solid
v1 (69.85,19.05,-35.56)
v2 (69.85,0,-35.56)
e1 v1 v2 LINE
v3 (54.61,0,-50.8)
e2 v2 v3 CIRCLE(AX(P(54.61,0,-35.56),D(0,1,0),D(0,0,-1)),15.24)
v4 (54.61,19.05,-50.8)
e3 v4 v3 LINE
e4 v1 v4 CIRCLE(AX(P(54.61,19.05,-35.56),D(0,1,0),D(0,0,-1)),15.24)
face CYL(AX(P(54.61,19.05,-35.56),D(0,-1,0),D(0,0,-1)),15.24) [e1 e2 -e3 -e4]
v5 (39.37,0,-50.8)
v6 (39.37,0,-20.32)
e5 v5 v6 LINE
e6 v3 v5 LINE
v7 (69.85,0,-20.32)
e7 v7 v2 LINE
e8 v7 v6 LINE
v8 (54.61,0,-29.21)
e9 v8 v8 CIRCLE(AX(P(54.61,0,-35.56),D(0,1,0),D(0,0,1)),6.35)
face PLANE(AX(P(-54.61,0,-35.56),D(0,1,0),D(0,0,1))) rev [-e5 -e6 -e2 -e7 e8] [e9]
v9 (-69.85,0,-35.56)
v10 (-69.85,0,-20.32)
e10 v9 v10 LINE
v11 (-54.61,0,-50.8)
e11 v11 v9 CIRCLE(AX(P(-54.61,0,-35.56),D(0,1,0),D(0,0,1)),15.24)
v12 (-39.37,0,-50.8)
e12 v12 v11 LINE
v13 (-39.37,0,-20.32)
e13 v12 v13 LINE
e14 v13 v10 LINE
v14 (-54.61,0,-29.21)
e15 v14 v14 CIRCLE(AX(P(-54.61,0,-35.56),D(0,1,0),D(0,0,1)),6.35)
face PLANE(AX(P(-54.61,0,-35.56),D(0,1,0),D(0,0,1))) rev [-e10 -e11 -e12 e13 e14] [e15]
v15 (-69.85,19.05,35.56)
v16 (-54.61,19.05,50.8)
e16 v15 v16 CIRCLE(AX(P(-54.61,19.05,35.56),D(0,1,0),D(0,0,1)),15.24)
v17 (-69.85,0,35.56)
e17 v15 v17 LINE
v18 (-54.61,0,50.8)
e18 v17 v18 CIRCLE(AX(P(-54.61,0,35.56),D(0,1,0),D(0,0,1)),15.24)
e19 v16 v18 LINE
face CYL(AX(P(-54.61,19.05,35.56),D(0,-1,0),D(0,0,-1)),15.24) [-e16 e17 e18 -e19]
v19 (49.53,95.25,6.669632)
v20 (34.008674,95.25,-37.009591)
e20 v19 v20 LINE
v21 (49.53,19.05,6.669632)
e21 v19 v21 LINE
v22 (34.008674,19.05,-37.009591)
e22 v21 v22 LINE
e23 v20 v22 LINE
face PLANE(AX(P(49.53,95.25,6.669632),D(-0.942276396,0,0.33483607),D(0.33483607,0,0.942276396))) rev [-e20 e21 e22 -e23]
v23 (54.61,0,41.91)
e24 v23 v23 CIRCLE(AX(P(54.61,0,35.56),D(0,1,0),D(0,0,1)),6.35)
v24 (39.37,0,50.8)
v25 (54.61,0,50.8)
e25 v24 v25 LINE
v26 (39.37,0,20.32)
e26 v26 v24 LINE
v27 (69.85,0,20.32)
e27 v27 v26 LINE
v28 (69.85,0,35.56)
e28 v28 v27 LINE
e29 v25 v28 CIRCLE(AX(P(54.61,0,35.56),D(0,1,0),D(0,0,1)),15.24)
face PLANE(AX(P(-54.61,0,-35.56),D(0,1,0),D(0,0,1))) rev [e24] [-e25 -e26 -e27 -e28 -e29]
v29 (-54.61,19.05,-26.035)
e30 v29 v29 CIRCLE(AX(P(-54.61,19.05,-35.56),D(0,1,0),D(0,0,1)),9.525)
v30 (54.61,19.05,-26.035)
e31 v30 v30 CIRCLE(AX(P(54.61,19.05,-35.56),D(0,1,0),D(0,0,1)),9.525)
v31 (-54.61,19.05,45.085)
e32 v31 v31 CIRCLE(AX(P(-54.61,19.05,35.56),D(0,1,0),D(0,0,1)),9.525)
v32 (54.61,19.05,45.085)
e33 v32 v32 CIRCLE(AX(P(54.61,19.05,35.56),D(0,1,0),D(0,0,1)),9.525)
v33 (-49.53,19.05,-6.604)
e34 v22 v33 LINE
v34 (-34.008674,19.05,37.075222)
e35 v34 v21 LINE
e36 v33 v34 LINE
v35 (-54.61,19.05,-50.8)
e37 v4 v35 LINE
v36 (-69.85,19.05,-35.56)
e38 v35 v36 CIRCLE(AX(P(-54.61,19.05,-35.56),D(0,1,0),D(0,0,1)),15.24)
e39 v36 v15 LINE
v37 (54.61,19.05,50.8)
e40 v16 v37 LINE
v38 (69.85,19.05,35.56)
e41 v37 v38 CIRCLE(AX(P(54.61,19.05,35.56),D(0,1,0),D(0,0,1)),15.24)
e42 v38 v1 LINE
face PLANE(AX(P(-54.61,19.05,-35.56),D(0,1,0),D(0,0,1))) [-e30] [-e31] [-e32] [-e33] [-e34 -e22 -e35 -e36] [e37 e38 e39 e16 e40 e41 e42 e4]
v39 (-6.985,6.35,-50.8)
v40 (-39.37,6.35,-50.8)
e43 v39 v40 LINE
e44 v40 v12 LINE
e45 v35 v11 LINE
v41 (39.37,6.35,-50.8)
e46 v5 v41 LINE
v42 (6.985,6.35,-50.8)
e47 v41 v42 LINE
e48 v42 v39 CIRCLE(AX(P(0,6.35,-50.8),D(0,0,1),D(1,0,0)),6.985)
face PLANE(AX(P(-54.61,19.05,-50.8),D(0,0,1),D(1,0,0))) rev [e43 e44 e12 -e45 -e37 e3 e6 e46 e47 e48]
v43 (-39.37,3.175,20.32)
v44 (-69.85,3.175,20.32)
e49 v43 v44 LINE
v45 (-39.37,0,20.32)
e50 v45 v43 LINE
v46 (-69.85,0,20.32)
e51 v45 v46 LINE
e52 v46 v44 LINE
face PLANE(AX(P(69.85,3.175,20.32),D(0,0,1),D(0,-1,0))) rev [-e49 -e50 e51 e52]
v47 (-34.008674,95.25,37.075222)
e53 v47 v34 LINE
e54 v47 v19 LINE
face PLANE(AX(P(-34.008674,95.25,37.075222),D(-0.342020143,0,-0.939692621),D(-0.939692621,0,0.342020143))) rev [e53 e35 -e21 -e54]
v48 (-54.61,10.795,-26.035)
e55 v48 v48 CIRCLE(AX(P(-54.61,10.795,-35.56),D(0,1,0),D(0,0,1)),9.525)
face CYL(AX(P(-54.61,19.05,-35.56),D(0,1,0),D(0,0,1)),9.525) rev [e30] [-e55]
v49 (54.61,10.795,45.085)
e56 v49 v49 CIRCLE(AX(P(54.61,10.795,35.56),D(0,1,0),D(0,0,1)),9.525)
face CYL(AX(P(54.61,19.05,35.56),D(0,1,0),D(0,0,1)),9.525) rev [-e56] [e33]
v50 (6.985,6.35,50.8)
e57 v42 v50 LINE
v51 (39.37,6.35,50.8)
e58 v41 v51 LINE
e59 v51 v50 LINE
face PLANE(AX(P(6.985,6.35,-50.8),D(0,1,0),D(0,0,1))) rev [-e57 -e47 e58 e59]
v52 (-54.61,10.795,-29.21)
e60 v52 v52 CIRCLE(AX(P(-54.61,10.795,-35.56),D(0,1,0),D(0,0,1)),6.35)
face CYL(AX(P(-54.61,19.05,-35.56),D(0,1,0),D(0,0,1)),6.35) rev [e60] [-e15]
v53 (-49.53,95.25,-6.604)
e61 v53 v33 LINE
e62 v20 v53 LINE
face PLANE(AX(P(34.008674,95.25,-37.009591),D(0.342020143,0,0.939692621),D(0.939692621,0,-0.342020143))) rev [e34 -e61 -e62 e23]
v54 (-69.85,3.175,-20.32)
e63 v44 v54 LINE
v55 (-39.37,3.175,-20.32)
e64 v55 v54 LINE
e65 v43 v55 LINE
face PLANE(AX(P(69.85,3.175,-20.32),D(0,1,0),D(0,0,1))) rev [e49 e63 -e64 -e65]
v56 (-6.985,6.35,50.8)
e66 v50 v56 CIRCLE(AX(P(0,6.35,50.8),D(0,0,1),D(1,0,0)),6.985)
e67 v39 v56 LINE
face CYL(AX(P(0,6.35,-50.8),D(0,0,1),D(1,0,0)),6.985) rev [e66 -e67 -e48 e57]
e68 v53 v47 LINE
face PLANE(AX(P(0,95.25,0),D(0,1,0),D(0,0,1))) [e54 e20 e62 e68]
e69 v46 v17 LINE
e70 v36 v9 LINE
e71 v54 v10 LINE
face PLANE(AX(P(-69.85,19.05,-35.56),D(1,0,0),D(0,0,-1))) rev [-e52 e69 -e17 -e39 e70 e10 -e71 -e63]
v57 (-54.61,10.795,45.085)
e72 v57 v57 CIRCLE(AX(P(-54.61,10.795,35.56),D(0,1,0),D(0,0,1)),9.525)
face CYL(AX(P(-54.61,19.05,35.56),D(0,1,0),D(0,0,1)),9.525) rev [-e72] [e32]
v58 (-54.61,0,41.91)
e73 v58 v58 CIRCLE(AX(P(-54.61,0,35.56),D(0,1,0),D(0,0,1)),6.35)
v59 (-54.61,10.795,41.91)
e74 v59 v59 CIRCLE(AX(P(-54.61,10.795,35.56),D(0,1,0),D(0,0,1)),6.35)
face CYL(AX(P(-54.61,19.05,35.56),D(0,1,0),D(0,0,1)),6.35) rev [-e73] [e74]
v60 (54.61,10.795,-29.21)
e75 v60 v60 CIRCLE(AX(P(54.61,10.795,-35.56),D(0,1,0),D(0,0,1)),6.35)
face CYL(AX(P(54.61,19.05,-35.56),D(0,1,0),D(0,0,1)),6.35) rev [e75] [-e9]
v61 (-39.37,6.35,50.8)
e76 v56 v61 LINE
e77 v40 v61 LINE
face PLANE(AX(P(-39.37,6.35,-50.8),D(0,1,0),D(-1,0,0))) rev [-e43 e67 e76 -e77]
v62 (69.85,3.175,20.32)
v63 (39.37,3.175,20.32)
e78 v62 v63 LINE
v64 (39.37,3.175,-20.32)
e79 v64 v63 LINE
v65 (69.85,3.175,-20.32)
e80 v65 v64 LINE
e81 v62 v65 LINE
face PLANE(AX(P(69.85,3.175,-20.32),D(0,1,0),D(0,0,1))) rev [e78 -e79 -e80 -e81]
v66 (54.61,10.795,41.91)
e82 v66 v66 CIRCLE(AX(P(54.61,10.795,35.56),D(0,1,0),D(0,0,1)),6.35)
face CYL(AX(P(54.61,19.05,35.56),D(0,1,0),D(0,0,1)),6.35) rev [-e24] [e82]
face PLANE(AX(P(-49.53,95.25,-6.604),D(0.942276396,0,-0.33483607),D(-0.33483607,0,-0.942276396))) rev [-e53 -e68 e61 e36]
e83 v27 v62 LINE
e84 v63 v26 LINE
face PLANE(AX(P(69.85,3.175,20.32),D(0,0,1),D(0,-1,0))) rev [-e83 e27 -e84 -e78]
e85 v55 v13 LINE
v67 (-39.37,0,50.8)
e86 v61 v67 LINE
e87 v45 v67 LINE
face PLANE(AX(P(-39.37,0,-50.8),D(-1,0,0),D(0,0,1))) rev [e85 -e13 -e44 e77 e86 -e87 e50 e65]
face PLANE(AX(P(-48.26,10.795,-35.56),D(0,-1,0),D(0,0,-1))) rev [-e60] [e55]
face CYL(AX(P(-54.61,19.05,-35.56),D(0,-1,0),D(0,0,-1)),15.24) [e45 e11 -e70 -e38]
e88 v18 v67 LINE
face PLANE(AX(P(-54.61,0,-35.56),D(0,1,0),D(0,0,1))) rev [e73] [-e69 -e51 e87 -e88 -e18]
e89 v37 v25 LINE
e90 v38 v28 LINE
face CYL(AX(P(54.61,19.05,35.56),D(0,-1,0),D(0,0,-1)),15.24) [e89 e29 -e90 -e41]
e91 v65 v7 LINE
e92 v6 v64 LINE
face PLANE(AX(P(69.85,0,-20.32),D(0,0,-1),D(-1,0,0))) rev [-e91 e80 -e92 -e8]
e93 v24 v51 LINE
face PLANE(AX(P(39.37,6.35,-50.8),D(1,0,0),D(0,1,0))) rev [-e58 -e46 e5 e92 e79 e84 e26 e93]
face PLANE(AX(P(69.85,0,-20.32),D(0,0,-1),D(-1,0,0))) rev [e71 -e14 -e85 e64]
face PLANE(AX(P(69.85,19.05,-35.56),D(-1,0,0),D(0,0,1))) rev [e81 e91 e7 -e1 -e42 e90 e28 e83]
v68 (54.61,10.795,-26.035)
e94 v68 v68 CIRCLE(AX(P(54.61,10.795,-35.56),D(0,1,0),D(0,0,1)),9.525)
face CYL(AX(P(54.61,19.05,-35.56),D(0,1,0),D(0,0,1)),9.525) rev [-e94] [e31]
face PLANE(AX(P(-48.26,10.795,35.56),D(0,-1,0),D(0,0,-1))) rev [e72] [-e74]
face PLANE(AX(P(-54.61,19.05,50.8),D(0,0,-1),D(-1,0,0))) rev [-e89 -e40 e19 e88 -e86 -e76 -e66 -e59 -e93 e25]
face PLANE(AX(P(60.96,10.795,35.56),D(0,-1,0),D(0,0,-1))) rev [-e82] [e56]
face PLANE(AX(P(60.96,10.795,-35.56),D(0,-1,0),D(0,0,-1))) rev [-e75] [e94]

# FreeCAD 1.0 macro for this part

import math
import FreeCAD as App
import Part
import Sketcher
Q = App.Units.Quantity

doc = App.newDocument("Part")
params = doc.addObject("Spreadsheet::Sheet", "Params")
for row, (alias, value) in enumerate([
    ("sketch1_radius", "0.6 in"),
    ("sketch1_width", "4.3 in"),
    ("sketch1_height", "2.8 in"),
    ("pad1_length", "0.75 in"),
    ("sketch2_diameter", "0.5 in"),
    ("hole_diameter", "0.5 in"),
    ("hole_depth", "0.75 in"),
    ("hole_cbore_diameter", "0.75 in"),
    ("hole_cbore_depth", "0.325 in"),
    ("sketch3_width", "3.1 in"),
    ("sketch3_radius", "0.275 in"),
    ("sketch3_height", "0.25 in"),
    ("sketch4_height", "1.6 in"),
    ("sketch4_width", "0.125 in"),
    ("sketch5_length", "3.5 in"),
    ("sketch5_length2", "1.825 in"),
    ("pad2_length", "3 in"),
], start=1):
    params.set(f"A{row}", alias)
    params.set(f"B{row}", "=" + value)
    params.setAlias(f"B{row}", alias)

body = doc.addObject("PartDesign::Body", "Body")

# Sketch on XZ plane
sketch1 = body.newObject("Sketcher::SketchObject", "Sketch")
sketch1.AttachmentSupport = (doc.getObject("XZ_Plane"), [""])
sketch1.MapMode = "FlatFace"
sketch1.addGeometry(Part.LineSegment(App.Vector(54.61, -50.8, 0), App.Vector(-54.61, -50.8, 0)), False)
sketch1.addGeometry(Part.ArcOfCircle(Part.Circle(App.Vector(-54.61, -35.56, 0), App.Vector(0, 0, 1), 15.24), math.radians(-180), math.radians(-90)), False)
sketch1.addGeometry(Part.LineSegment(App.Vector(-69.85, -35.56, 0), App.Vector(-69.85, 35.56, 0)), False)
sketch1.addGeometry(Part.ArcOfCircle(Part.Circle(App.Vector(-54.61, 35.56, 0), App.Vector(0, 0, 1), 15.24), math.radians(90), math.radians(180)), False)
sketch1.addGeometry(Part.LineSegment(App.Vector(-54.61, 50.8, 0), App.Vector(54.61, 50.8, 0)), False)
sketch1.addGeometry(Part.ArcOfCircle(Part.Circle(App.Vector(54.61, 35.56, 0), App.Vector(0, 0, 1), 15.24), math.radians(0), math.radians(90)), False)
sketch1.addGeometry(Part.LineSegment(App.Vector(69.85, 35.56, 0), App.Vector(69.85, -35.56, 0)), False)
sketch1.addGeometry(Part.ArcOfCircle(Part.Circle(App.Vector(54.61, -35.56, 0), App.Vector(0, 0, 1), 15.24), math.radians(-90), math.radians(0)), False)
sketch1.addConstraint(Sketcher.Constraint("Tangent", 0, 2, 1, 2))
sketch1.addConstraint(Sketcher.Constraint("Tangent", 1, 1, 2, 1))
sketch1.addConstraint(Sketcher.Constraint("Tangent", 2, 2, 3, 2))
sketch1.addConstraint(Sketcher.Constraint("Tangent", 3, 1, 4, 1))
sketch1.addConstraint(Sketcher.Constraint("Tangent", 4, 2, 5, 2))
sketch1.addConstraint(Sketcher.Constraint("Tangent", 5, 1, 6, 1))
sketch1.addConstraint(Sketcher.Constraint("Tangent", 6, 2, 7, 2))
sketch1.addConstraint(Sketcher.Constraint("Tangent", 7, 1, 0, 1))
sketch1.addConstraint(Sketcher.Constraint("Horizontal", 0))
sketch1.addConstraint(Sketcher.Constraint("Vertical", 2))
sketch1.addConstraint(Sketcher.Constraint("Horizontal", 4))
sketch1.addConstraint(Sketcher.Constraint("Vertical", 6))
sketch1.addConstraint(Sketcher.Constraint("Equal", 1, 3))
sketch1.addConstraint(Sketcher.Constraint("Equal", 3, 5))
sketch1.addConstraint(Sketcher.Constraint("Equal", 5, 7))
sketch1.addConstraint(Sketcher.Constraint("Symmetric", 1, 3, 5, 3, -1, 1))
sketch1.addConstraint(Sketcher.Constraint("Radius", 1, Q("0.6 in")))
sketch1.addConstraint(Sketcher.Constraint("DistanceX", 0, 2, 0, 1, Q("4.3 in")))
sketch1.addConstraint(Sketcher.Constraint("DistanceY", 2, 1, 2, 2, Q("2.8 in")))
sketch1.setExpression("Constraints[16]", "Params.sketch1_radius")
sketch1.setExpression("Constraints[17]", "Params.sketch1_width")
sketch1.setExpression("Constraints[18]", "Params.sketch1_height")
pad1 = body.newObject("PartDesign::Pad", "Pad")
pad1.Profile = sketch1
pad1.setExpression("Length", "Params.pad1_length")
pad1.Reversed = True

# Sketch on XZ plane
sketch2 = body.newObject("Sketcher::SketchObject", "Sketch001")
sketch2.AttachmentSupport = (doc.getObject("XZ_Plane"), [""])
sketch2.MapMode = "FlatFace"
sketch2.AttachmentOffset = App.Placement(App.Vector(0, 0, -0.75 * 25.4), App.Rotation())
sketch2.addGeometry(Part.Circle(App.Vector(-54.61, -35.56, 0), App.Vector(0, 0, 1), 6.35), False)
sketch2.addGeometry(Part.Circle(App.Vector(54.61, -35.56, 0), App.Vector(0, 0, 1), 6.35), False)
sketch2.addGeometry(Part.Circle(App.Vector(-54.61, 35.56, 0), App.Vector(0, 0, 1), 6.35), False)
sketch2.addGeometry(Part.Circle(App.Vector(54.61, 35.56, 0), App.Vector(0, 0, 1), 6.35), False)
sketch2.addConstraint(Sketcher.Constraint("Equal", 0, 1))
sketch2.addConstraint(Sketcher.Constraint("Equal", 1, 2))
sketch2.addConstraint(Sketcher.Constraint("Equal", 2, 3))
sketch2.addConstraint(Sketcher.Constraint("Symmetric", 1, 3, 2, 3, -1, 1))
sketch2.addConstraint(Sketcher.Constraint("Symmetric", 0, 3, 3, 3, -1, 1))
sketch2.addConstraint(Sketcher.Constraint("Symmetric", 0, 3, 1, 3, -2))
sketch2.addConstraint(Sketcher.Constraint("Diameter", 0, Q("0.5 in")))
sketch2.addConstraint(Sketcher.Constraint("DistanceY", 0, 3, -1, 1, Q("1.4 in")))
sketch2.addConstraint(Sketcher.Constraint("DistanceX", 0, 3, 1, 3, Q("4.3 in")))
sketch2.setExpression("Constraints[6]", "Params.sketch2_diameter")
doc.recompute()
hole = body.newObject("PartDesign::Hole", "Hole")
hole.Profile = sketch2
hole.ThreadType = "None"
hole.setExpression("Diameter", "Params.hole_diameter")
hole.DepthType = "Dimension"
hole.setExpression("Depth", "Params.hole_depth")
hole.DrillPoint = "Flat"
hole.HoleCutType = "Counterbore"
hole.setExpression("HoleCutDiameter", "Params.hole_cbore_diameter")
hole.setExpression("HoleCutDepth", "Params.hole_cbore_depth")
hole.Reversed = True

# Sketch on XY plane
sketch3 = body.newObject("Sketcher::SketchObject", "Sketch002")
sketch3.AttachmentSupport = (doc.getObject("XY_Plane"), [""])
sketch3.MapMode = "FlatFace"
sketch3.AttachmentOffset = App.Placement(App.Vector(0, 0, 2 * 25.4), App.Rotation())
sketch3.addGeometry(Part.LineSegment(App.Vector(-39.37, 6.35, 0), App.Vector(-39.37, 0, 0)), False)
sketch3.addGeometry(Part.LineSegment(App.Vector(-39.37, 0, 0), App.Vector(39.37, 0, 0)), False)
sketch3.addGeometry(Part.LineSegment(App.Vector(39.37, 0, 0), App.Vector(39.37, 6.35, 0)), False)
sketch3.addGeometry(Part.LineSegment(App.Vector(39.37, 6.35, 0), App.Vector(6.985, 6.35, 0)), False)
sketch3.addGeometry(Part.ArcOfCircle(Part.Circle(App.Vector(0, 6.35, 0), App.Vector(0, 0, 1), 6.985), math.radians(0), math.radians(180)), False)
sketch3.addGeometry(Part.LineSegment(App.Vector(-6.985, 6.35, 0), App.Vector(-39.37, 6.35, 0)), False)
sketch3.addConstraint(Sketcher.Constraint("Coincident", 0, 2, 1, 1))
sketch3.addConstraint(Sketcher.Constraint("Coincident", 1, 2, 2, 1))
sketch3.addConstraint(Sketcher.Constraint("Coincident", 2, 2, 3, 1))
sketch3.addConstraint(Sketcher.Constraint("Coincident", 3, 2, 4, 1))
sketch3.addConstraint(Sketcher.Constraint("Coincident", 4, 2, 5, 1))
sketch3.addConstraint(Sketcher.Constraint("Coincident", 5, 2, 0, 1))
sketch3.addConstraint(Sketcher.Constraint("Vertical", 0))
sketch3.addConstraint(Sketcher.Constraint("Horizontal", 1))
sketch3.addConstraint(Sketcher.Constraint("Vertical", 2))
sketch3.addConstraint(Sketcher.Constraint("Horizontal", 3))
sketch3.addConstraint(Sketcher.Constraint("Horizontal", 5))
sketch3.addConstraint(Sketcher.Constraint("Symmetric", 0, 2, 1, 2, -1, 1))
sketch3.addConstraint(Sketcher.Constraint("Symmetric", 3, 2, 4, 2, -2))
sketch3.addConstraint(Sketcher.Constraint("Horizontal", 4, 3, 2, 2))
sketch3.addConstraint(Sketcher.Constraint("DistanceX", 1, 1, 1, 2, Q("3.1 in")))
sketch3.addConstraint(Sketcher.Constraint("Radius", 4, Q("0.275 in")))
sketch3.addConstraint(Sketcher.Constraint("DistanceY", 0, 2, 0, 1, Q("0.25 in")))
sketch3.setExpression("Constraints[14]", "Params.sketch3_width")
sketch3.setExpression("Constraints[15]", "Params.sketch3_radius")
sketch3.setExpression("Constraints[16]", "Params.sketch3_height")
pocket1 = body.newObject("PartDesign::Pocket", "Pocket")
pocket1.Profile = sketch3
pocket1.Type = "ThroughAll"

# Sketch on YZ plane
sketch4 = body.newObject("Sketcher::SketchObject", "Sketch003")
sketch4.AttachmentSupport = (doc.getObject("YZ_Plane"), [""])
sketch4.MapMode = "FlatFace"
sketch4.AttachmentOffset = App.Placement(App.Vector(0, 0, -2.75 * 25.4), App.Rotation())
sketch4.addGeometry(Part.LineSegment(App.Vector(3.175, -20.32, 0), App.Vector(0, -20.32, 0)), False)
sketch4.addGeometry(Part.LineSegment(App.Vector(0, -20.32, 0), App.Vector(0, 20.32, 0)), False)
sketch4.addGeometry(Part.LineSegment(App.Vector(0, 20.32, 0), App.Vector(3.175, 20.32, 0)), False)
sketch4.addGeometry(Part.LineSegment(App.Vector(3.175, 20.32, 0), App.Vector(3.175, -20.32, 0)), False)
sketch4.addConstraint(Sketcher.Constraint("Coincident", 0, 2, 1, 1))
sketch4.addConstraint(Sketcher.Constraint("Coincident", 1, 2, 2, 1))
sketch4.addConstraint(Sketcher.Constraint("Coincident", 2, 2, 3, 1))
sketch4.addConstraint(Sketcher.Constraint("Coincident", 3, 2, 0, 1))
sketch4.addConstraint(Sketcher.Constraint("Horizontal", 0))
sketch4.addConstraint(Sketcher.Constraint("Vertical", 1))
sketch4.addConstraint(Sketcher.Constraint("Horizontal", 2))
sketch4.addConstraint(Sketcher.Constraint("Vertical", 3))
sketch4.addConstraint(Sketcher.Constraint("Symmetric", 0, 2, 1, 2, -1, 1))
sketch4.addConstraint(Sketcher.Constraint("DistanceY", 1, 1, 1, 2, Q("1.6 in")))
sketch4.addConstraint(Sketcher.Constraint("DistanceX", 0, 2, 0, 1, Q("0.125 in")))
sketch4.setExpression("Constraints[9]", "Params.sketch4_height")
sketch4.setExpression("Constraints[10]", "Params.sketch4_width")
pocket2 = body.newObject("PartDesign::Pocket", "Pocket001")
pocket2.Profile = sketch4
pocket2.Type = "ThroughAll"
pocket2.Reversed = True

# Sketch on XZ plane
sketch5 = body.newObject("Sketcher::SketchObject", "Sketch004")
sketch5.AttachmentSupport = (doc.getObject("XZ_Plane"), [""])
sketch5.MapMode = "FlatFace"
sketch5.AttachmentOffset = App.Placement(App.Vector(0, 0, -0.75 * 25.4), App.Rotation())
sketch5.addGeometry(Part.LineSegment(App.Vector(-49.53, -6.604, 0), App.Vector(-34.008674, 37.075222, 0)), False)
sketch5.addGeometry(Part.LineSegment(App.Vector(-34.008674, 37.075222, 0), App.Vector(49.53, 6.669632, 0)), False)
sketch5.addGeometry(Part.LineSegment(App.Vector(49.53, 6.669632, 0), App.Vector(34.008674, -37.009591, 0)), False)
sketch5.addGeometry(Part.LineSegment(App.Vector(34.008674, -37.009591, 0), App.Vector(-49.53, -6.604, 0)), False)
sketch5.addConstraint(Sketcher.Constraint("Coincident", 0, 2, 1, 1))
sketch5.addConstraint(Sketcher.Constraint("Coincident", 1, 2, 2, 1))
sketch5.addConstraint(Sketcher.Constraint("Coincident", 2, 2, 3, 1))
sketch5.addConstraint(Sketcher.Constraint("Coincident", 3, 2, 0, 1))
sketch5.addConstraint(Sketcher.Constraint("Parallel", 0, 2))
sketch5.addConstraint(Sketcher.Constraint("Parallel", 1, 3))
sketch5.addConstraint(Sketcher.Constraint("Angle", 1, Q("-20 deg")))
sketch5.addConstraint(Sketcher.Constraint("Distance", 1, Q("3.5 in")))
sketch5.addConstraint(Sketcher.Constraint("DistanceX", 3, 2, 1, 2, Q("3.9 in")))
sketch5.addConstraint(Sketcher.Constraint("DistanceX", -1, 1, 1, 2, Q("1.95 in")))
sketch5.addConstraint(Sketcher.Constraint("DistanceY", 3, 2, -1, 1, Q("0.26 in")))
sketch5.addConstraint(Sketcher.Constraint("Distance", 0, Q("1.825 in")))
sketch5.setExpression("Constraints[7]", "Params.sketch5_length")
sketch5.setExpression("Constraints[11]", "Params.sketch5_length2")
pad2 = body.newObject("PartDesign::Pad", "Pad001")
pad2.Profile = sketch5
pad2.setExpression("Length", "Params.pad2_length")
pad2.Reversed = True

doc.recompute()
